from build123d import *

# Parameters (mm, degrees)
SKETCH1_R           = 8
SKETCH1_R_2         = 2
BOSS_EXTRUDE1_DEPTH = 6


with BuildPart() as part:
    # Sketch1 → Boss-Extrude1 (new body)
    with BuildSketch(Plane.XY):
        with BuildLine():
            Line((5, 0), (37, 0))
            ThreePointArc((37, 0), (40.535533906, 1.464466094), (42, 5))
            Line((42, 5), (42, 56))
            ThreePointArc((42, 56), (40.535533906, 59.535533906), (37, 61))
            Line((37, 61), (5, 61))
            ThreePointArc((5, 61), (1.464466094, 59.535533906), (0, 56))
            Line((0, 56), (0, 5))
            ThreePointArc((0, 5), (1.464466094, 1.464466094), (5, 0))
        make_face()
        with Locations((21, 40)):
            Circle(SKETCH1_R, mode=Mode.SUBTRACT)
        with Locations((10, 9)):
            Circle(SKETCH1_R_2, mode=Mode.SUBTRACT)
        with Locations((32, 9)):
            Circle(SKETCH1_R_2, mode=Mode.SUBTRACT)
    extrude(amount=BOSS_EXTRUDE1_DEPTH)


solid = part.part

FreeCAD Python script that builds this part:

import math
import FreeCAD as App
import Part
import Sketcher

V = App.Vector

doc = App.newDocument("Part")
body = doc.addObject("PartDesign::Body", "Body")

# Sketch on XY plane
sketch1 = doc.addObject("Sketcher::SketchObject", "Sketch")
body.addObject(sketch1)
sketch1.AttachmentSupport = (doc.XY_Plane, [""])
sketch1.MapMode = "FlatFace"
sketch1.addGeometry(Part.LineSegment(V(5, 0, 0), V(37, 0, 0)), False)
sketch1.addGeometry(Part.ArcOfCircle(Part.Circle(V(37, 5, 0), V(0, 0, 1), 5), math.radians(-90), math.radians(0)), False)
sketch1.addGeometry(Part.LineSegment(V(42, 5, 0), V(42, 56, 0)), False)
sketch1.addGeometry(Part.ArcOfCircle(Part.Circle(V(37, 56, 0), V(0, 0, 1), 5), math.radians(0), math.radians(90)), False)
sketch1.addGeometry(Part.LineSegment(V(37, 61, 0), V(5, 61, 0)), False)
sketch1.addGeometry(Part.ArcOfCircle(Part.Circle(V(5, 56, 0), V(0, 0, 1), 5), math.radians(90), math.radians(180)), False)
sketch1.addGeometry(Part.LineSegment(V(0, 56, 0), V(0, 5, 0)), False)
sketch1.addGeometry(Part.ArcOfCircle(Part.Circle(V(5, 5, 0), V(0, 0, 1), 5), math.radians(180), math.radians(270)), False)
sketch1.addGeometry(Part.Circle(V(10, 9, 0), V(0, 0, 1), 2), False)
sketch1.addGeometry(Part.Circle(V(32, 9, 0), V(0, 0, 1), 2), False)
sketch1.addGeometry(Part.Circle(V(21, 40, 0), V(0, 0, 1), 8), False)
sketch1.addConstraint(Sketcher.Constraint("Tangent", 0, 2, 1, 1))
sketch1.addConstraint(Sketcher.Constraint("Tangent", 1, 2, 2, 1))
sketch1.addConstraint(Sketcher.Constraint("Tangent", 2, 2, 3, 1))
sketch1.addConstraint(Sketcher.Constraint("Tangent", 3, 2, 4, 1))
sketch1.addConstraint(Sketcher.Constraint("Tangent", 4, 2, 5, 1))
sketch1.addConstraint(Sketcher.Constraint("Tangent", 5, 2, 6, 1))
sketch1.addConstraint(Sketcher.Constraint("Tangent", 6, 2, 7, 1))
sketch1.addConstraint(Sketcher.Constraint("Tangent", 7, 2, 0, 1))
sketch1.addConstraint(Sketcher.Constraint("Horizontal", 0))
sketch1.addConstraint(Sketcher.Constraint("Vertical", 2))
sketch1.addConstraint(Sketcher.Constraint("Horizontal", 4))
sketch1.addConstraint(Sketcher.Constraint("Vertical", 6))
sketch1.addConstraint(Sketcher.Constraint("Equal", 1, 3))
sketch1.addConstraint(Sketcher.Constraint("Equal", 3, 5))
sketch1.addConstraint(Sketcher.Constraint("Equal", 5, 7))
sketch1.addConstraint(Sketcher.Constraint("Equal", 8, 9))
sketch1.addConstraint(Sketcher.Constraint("PointOnObject", 0, 2, -1))
sketch1.addConstraint(Sketcher.Constraint("PointOnObject", 5, 2, -2))
sketch1.addConstraint(Sketcher.Constraint("Horizontal", 8, 3, 9, 3))
sketch1.addConstraint(Sketcher.Constraint("Diameter", 8, 4.0))
sketch1.addConstraint(Sketcher.Constraint("Diameter", 10, 16.0))
sketch1.addConstraint(Sketcher.Constraint("Radius", 1, 5.0))
sketch1.addConstraint(Sketcher.Constraint("DistanceX", 0, 1, 0, 2, 32.0))
sketch1.addConstraint(Sketcher.Constraint("DistanceY", 2, 1, 2, 2, 51.0))
sketch1.addConstraint(Sketcher.Constraint("DistanceX", -1, 1, 8, 3, 10.0))
sketch1.addConstraint(Sketcher.Constraint("DistanceY", -1, 1, 8, 3, 9.0))
sketch1.addConstraint(Sketcher.Constraint("DistanceX", -1, 1, 9, 3, 32.0))
sketch1.addConstraint(Sketcher.Constraint("DistanceX", -1, 1, 10, 3, 21.0))
sketch1.addConstraint(Sketcher.Constraint("DistanceY", -1, 1, 10, 3, 40.0))
pad1 = doc.addObject("PartDesign::Pad", "Pad")
body.addObject(pad1)
pad1.Profile = sketch1
pad1.Length = 6

doc.recompute()
